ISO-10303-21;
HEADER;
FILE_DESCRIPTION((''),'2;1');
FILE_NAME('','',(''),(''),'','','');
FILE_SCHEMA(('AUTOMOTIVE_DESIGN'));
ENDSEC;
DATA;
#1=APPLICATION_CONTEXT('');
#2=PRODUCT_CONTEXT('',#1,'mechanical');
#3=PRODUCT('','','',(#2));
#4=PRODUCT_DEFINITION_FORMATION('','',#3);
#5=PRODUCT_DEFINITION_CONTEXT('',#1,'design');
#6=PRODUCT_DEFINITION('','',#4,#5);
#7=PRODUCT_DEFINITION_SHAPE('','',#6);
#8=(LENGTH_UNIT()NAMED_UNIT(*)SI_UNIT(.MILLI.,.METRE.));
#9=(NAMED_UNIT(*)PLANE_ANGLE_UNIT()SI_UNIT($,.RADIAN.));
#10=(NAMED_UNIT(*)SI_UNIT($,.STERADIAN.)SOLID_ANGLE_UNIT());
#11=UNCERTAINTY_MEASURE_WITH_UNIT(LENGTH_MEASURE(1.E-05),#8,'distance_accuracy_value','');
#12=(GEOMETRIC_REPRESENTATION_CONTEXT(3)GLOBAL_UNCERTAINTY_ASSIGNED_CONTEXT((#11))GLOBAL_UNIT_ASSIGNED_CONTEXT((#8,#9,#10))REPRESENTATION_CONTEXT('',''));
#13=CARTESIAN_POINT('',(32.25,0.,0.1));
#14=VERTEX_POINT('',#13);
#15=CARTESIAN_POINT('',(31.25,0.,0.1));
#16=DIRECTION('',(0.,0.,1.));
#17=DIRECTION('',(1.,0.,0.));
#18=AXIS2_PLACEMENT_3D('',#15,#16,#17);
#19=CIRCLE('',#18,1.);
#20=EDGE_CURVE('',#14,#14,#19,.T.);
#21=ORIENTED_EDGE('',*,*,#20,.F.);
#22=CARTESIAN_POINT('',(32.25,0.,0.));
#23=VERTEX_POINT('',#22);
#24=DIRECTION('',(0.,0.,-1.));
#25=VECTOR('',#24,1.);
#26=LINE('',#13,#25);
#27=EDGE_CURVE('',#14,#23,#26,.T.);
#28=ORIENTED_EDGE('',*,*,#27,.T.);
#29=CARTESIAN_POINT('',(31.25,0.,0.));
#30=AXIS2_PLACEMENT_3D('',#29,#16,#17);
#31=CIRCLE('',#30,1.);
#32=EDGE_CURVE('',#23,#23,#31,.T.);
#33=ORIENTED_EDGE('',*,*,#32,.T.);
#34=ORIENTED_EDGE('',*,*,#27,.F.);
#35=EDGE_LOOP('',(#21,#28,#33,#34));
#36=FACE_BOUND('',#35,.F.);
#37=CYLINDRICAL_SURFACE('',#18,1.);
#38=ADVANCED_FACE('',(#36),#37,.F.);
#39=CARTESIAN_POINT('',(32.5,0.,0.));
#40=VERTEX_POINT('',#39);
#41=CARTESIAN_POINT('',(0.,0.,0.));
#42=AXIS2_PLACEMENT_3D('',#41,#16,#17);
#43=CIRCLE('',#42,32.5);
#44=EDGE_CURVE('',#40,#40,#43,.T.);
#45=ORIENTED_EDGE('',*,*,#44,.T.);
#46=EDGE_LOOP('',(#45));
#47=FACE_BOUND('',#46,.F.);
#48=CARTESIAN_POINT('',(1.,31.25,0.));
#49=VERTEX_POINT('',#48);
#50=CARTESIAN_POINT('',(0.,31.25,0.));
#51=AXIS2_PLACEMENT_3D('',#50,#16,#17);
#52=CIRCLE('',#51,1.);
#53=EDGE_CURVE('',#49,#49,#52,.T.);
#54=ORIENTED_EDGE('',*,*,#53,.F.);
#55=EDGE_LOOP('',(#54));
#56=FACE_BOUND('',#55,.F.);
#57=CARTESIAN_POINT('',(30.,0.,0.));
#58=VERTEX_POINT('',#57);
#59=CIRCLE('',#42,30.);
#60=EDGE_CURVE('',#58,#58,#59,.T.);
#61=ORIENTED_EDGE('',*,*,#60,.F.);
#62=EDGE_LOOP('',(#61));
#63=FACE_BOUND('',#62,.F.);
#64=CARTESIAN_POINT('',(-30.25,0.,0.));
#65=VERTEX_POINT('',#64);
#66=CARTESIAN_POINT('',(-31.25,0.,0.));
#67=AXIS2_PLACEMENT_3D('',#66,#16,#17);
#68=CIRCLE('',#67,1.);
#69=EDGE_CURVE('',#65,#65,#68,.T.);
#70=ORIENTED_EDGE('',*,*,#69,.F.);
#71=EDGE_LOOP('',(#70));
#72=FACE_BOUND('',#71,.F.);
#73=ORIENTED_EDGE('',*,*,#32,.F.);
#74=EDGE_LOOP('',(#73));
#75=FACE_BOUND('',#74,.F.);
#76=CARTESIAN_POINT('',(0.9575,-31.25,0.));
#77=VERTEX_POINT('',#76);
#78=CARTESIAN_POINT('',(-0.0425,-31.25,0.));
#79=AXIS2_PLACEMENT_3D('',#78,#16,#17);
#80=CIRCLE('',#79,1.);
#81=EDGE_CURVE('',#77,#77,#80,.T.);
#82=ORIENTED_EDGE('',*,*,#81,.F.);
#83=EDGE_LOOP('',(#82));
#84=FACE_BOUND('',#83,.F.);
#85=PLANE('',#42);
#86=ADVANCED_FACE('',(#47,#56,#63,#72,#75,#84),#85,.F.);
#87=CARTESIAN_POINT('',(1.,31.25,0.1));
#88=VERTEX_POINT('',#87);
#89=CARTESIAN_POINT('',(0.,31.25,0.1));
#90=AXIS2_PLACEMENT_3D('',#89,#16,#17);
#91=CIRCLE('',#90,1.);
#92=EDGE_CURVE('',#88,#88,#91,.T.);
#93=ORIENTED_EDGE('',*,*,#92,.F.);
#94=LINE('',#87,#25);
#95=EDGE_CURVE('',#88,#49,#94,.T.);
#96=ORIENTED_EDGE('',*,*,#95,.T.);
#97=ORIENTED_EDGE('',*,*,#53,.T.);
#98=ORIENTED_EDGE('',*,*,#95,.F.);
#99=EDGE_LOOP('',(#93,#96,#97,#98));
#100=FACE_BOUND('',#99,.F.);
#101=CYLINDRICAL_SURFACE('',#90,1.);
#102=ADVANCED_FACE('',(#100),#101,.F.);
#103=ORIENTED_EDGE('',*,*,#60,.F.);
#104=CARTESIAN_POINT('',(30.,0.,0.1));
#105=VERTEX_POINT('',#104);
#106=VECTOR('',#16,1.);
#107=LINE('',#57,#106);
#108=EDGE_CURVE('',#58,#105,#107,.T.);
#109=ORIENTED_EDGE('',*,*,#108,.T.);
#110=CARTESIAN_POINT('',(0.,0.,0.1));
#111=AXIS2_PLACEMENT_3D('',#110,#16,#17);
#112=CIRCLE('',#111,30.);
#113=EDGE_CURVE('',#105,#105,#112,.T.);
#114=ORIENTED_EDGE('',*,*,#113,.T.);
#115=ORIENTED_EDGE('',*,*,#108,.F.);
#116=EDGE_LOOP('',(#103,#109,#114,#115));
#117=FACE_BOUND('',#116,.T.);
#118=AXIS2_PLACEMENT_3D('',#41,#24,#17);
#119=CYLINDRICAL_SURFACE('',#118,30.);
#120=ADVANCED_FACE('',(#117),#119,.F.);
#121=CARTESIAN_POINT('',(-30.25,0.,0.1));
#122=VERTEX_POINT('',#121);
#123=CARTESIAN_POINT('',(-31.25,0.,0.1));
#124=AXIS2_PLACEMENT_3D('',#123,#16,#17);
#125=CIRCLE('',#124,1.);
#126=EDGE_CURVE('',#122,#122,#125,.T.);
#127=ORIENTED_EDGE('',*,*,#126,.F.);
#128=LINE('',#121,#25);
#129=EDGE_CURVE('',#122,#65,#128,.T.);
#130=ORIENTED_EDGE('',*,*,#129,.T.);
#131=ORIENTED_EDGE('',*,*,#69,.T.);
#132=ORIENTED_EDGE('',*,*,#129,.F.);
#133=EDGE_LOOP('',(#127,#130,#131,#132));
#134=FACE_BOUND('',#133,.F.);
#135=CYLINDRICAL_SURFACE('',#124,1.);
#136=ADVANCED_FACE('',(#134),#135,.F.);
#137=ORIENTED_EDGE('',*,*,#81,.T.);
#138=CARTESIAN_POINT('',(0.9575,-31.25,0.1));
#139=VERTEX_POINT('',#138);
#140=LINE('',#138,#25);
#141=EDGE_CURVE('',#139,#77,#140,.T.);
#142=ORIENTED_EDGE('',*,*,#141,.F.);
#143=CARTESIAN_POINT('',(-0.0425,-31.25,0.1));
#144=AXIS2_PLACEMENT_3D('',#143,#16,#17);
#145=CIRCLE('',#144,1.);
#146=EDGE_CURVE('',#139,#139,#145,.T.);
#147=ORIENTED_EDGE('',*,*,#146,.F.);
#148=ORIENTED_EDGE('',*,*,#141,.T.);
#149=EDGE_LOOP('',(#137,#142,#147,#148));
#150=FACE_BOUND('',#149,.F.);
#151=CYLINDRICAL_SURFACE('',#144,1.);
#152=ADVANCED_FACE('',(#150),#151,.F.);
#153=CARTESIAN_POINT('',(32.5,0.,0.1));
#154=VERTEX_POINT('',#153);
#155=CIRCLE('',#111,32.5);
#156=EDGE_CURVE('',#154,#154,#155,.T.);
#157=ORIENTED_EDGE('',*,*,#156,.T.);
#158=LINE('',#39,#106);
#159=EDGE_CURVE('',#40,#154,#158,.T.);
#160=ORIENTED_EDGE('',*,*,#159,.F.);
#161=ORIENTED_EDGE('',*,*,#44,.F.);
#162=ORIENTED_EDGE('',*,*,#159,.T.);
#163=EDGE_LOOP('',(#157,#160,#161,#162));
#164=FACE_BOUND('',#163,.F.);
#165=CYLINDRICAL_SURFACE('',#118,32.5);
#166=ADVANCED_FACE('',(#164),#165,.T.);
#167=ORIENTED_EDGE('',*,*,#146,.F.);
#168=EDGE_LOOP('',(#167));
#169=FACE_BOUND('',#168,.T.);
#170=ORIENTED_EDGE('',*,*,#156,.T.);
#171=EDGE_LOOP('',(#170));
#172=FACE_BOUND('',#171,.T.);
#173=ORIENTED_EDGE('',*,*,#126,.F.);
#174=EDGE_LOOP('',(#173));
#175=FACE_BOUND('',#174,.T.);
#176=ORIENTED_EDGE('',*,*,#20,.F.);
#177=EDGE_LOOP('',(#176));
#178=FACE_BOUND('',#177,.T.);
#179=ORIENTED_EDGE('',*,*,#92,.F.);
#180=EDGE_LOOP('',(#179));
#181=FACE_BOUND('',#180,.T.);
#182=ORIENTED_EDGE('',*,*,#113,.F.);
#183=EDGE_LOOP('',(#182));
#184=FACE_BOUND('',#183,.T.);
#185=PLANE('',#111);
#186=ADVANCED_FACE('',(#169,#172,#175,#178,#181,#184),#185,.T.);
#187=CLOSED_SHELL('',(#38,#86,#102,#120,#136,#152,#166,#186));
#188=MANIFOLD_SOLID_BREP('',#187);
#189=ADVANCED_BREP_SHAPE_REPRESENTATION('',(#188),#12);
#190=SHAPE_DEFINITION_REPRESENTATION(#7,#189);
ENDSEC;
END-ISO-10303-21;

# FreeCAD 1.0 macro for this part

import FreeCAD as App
import Part
import Sketcher
from FreeCAD import Vector
Q = App.Units.Quantity

doc = App.newDocument("Part")
body = doc.addObject("PartDesign::Body", "Body")

# Sketch on XY plane
sketch1 = body.newObject("Sketcher::SketchObject", "Sketch")
sketch1.AttachmentSupport = (doc.getObject("XY_Plane"), [""])
sketch1.MapMode = "FlatFace"
sketch1.addGeometry(Part.Circle(Vector(0, 0, 0), Vector(0, 0, 1), 32.5), False)
sketch1.addGeometry(Part.Circle(Vector(0, 0, 0), Vector(0, 0, 1), 30), False)
sketch1.addConstraint(Sketcher.Constraint("Coincident", 0, 3, -1, 1))
sketch1.addConstraint(Sketcher.Constraint("Coincident", 1, 3, -1, 1))
sketch1.addConstraint(Sketcher.Constraint("Diameter", 1, Q("60 mm")))
sketch1.addConstraint(Sketcher.Constraint("Diameter", 0, Q("65 mm")))
pad1 = body.newObject("PartDesign::Pad", "Pad")
pad1.Profile = sketch1
pad1.Length = 0.1

# Sketch on XY plane
sketch2 = body.newObject("Sketcher::SketchObject", "Sketch001")
sketch2.AttachmentSupport = (doc.getObject("XY_Plane"), [""])
sketch2.MapMode = "FlatFace"
sketch2.AttachmentOffset = App.Placement(Vector(0, 0, 0.1), App.Rotation())
sketch2.addGeometry(Part.Circle(Vector(0, 31.25, 0), Vector(0, 0, 1), 1), False)
sketch2.addGeometry(Part.Circle(Vector(31.25, 0, 0), Vector(0, 0, 1), 1), False)
sketch2.addGeometry(Part.Circle(Vector(-31.25, 0, 0), Vector(0, 0, 1), 1), False)
sketch2.addGeometry(Part.Circle(Vector(-0.0425, -31.25, 0), Vector(0, 0, 1), 1), False)
sketch2.addConstraint(Sketcher.Constraint("Equal", 0, 1))
sketch2.addConstraint(Sketcher.Constraint("Equal", 1, 2))
sketch2.addConstraint(Sketcher.Constraint("Equal", 2, 3))
sketch2.addConstraint(Sketcher.Constraint("Symmetric", 1, 3, 2, 3, -1, 1))
sketch2.addConstraint(Sketcher.Constraint("PointOnObject", 0, 3, -2))
sketch2.addConstraint(Sketcher.Constraint("PointOnObject", 1, 3, -1))
sketch2.addConstraint(Sketcher.Constraint("Diameter", 0, Q("2 mm")))
sketch2.addConstraint(Sketcher.Constraint("DistanceX", 2, 3, 1, 3, Q("62.5 mm")))
sketch2.addConstraint(Sketcher.Constraint("DistanceY", 3, 3, 0, 3, Q("62.5 mm")))
sketch2.addConstraint(Sketcher.Constraint("DistanceY", -1, 1, 0, 3, Q("31.25 mm")))
sketch2.addConstraint(Sketcher.Constraint("DistanceX", 3, 3, -1, 1, Q("0.0425 mm")))
pocket1 = body.newObject("PartDesign::Pocket", "Pocket")
pocket1.Profile = sketch2
pocket1.Length = 0.2

doc.recompute()
